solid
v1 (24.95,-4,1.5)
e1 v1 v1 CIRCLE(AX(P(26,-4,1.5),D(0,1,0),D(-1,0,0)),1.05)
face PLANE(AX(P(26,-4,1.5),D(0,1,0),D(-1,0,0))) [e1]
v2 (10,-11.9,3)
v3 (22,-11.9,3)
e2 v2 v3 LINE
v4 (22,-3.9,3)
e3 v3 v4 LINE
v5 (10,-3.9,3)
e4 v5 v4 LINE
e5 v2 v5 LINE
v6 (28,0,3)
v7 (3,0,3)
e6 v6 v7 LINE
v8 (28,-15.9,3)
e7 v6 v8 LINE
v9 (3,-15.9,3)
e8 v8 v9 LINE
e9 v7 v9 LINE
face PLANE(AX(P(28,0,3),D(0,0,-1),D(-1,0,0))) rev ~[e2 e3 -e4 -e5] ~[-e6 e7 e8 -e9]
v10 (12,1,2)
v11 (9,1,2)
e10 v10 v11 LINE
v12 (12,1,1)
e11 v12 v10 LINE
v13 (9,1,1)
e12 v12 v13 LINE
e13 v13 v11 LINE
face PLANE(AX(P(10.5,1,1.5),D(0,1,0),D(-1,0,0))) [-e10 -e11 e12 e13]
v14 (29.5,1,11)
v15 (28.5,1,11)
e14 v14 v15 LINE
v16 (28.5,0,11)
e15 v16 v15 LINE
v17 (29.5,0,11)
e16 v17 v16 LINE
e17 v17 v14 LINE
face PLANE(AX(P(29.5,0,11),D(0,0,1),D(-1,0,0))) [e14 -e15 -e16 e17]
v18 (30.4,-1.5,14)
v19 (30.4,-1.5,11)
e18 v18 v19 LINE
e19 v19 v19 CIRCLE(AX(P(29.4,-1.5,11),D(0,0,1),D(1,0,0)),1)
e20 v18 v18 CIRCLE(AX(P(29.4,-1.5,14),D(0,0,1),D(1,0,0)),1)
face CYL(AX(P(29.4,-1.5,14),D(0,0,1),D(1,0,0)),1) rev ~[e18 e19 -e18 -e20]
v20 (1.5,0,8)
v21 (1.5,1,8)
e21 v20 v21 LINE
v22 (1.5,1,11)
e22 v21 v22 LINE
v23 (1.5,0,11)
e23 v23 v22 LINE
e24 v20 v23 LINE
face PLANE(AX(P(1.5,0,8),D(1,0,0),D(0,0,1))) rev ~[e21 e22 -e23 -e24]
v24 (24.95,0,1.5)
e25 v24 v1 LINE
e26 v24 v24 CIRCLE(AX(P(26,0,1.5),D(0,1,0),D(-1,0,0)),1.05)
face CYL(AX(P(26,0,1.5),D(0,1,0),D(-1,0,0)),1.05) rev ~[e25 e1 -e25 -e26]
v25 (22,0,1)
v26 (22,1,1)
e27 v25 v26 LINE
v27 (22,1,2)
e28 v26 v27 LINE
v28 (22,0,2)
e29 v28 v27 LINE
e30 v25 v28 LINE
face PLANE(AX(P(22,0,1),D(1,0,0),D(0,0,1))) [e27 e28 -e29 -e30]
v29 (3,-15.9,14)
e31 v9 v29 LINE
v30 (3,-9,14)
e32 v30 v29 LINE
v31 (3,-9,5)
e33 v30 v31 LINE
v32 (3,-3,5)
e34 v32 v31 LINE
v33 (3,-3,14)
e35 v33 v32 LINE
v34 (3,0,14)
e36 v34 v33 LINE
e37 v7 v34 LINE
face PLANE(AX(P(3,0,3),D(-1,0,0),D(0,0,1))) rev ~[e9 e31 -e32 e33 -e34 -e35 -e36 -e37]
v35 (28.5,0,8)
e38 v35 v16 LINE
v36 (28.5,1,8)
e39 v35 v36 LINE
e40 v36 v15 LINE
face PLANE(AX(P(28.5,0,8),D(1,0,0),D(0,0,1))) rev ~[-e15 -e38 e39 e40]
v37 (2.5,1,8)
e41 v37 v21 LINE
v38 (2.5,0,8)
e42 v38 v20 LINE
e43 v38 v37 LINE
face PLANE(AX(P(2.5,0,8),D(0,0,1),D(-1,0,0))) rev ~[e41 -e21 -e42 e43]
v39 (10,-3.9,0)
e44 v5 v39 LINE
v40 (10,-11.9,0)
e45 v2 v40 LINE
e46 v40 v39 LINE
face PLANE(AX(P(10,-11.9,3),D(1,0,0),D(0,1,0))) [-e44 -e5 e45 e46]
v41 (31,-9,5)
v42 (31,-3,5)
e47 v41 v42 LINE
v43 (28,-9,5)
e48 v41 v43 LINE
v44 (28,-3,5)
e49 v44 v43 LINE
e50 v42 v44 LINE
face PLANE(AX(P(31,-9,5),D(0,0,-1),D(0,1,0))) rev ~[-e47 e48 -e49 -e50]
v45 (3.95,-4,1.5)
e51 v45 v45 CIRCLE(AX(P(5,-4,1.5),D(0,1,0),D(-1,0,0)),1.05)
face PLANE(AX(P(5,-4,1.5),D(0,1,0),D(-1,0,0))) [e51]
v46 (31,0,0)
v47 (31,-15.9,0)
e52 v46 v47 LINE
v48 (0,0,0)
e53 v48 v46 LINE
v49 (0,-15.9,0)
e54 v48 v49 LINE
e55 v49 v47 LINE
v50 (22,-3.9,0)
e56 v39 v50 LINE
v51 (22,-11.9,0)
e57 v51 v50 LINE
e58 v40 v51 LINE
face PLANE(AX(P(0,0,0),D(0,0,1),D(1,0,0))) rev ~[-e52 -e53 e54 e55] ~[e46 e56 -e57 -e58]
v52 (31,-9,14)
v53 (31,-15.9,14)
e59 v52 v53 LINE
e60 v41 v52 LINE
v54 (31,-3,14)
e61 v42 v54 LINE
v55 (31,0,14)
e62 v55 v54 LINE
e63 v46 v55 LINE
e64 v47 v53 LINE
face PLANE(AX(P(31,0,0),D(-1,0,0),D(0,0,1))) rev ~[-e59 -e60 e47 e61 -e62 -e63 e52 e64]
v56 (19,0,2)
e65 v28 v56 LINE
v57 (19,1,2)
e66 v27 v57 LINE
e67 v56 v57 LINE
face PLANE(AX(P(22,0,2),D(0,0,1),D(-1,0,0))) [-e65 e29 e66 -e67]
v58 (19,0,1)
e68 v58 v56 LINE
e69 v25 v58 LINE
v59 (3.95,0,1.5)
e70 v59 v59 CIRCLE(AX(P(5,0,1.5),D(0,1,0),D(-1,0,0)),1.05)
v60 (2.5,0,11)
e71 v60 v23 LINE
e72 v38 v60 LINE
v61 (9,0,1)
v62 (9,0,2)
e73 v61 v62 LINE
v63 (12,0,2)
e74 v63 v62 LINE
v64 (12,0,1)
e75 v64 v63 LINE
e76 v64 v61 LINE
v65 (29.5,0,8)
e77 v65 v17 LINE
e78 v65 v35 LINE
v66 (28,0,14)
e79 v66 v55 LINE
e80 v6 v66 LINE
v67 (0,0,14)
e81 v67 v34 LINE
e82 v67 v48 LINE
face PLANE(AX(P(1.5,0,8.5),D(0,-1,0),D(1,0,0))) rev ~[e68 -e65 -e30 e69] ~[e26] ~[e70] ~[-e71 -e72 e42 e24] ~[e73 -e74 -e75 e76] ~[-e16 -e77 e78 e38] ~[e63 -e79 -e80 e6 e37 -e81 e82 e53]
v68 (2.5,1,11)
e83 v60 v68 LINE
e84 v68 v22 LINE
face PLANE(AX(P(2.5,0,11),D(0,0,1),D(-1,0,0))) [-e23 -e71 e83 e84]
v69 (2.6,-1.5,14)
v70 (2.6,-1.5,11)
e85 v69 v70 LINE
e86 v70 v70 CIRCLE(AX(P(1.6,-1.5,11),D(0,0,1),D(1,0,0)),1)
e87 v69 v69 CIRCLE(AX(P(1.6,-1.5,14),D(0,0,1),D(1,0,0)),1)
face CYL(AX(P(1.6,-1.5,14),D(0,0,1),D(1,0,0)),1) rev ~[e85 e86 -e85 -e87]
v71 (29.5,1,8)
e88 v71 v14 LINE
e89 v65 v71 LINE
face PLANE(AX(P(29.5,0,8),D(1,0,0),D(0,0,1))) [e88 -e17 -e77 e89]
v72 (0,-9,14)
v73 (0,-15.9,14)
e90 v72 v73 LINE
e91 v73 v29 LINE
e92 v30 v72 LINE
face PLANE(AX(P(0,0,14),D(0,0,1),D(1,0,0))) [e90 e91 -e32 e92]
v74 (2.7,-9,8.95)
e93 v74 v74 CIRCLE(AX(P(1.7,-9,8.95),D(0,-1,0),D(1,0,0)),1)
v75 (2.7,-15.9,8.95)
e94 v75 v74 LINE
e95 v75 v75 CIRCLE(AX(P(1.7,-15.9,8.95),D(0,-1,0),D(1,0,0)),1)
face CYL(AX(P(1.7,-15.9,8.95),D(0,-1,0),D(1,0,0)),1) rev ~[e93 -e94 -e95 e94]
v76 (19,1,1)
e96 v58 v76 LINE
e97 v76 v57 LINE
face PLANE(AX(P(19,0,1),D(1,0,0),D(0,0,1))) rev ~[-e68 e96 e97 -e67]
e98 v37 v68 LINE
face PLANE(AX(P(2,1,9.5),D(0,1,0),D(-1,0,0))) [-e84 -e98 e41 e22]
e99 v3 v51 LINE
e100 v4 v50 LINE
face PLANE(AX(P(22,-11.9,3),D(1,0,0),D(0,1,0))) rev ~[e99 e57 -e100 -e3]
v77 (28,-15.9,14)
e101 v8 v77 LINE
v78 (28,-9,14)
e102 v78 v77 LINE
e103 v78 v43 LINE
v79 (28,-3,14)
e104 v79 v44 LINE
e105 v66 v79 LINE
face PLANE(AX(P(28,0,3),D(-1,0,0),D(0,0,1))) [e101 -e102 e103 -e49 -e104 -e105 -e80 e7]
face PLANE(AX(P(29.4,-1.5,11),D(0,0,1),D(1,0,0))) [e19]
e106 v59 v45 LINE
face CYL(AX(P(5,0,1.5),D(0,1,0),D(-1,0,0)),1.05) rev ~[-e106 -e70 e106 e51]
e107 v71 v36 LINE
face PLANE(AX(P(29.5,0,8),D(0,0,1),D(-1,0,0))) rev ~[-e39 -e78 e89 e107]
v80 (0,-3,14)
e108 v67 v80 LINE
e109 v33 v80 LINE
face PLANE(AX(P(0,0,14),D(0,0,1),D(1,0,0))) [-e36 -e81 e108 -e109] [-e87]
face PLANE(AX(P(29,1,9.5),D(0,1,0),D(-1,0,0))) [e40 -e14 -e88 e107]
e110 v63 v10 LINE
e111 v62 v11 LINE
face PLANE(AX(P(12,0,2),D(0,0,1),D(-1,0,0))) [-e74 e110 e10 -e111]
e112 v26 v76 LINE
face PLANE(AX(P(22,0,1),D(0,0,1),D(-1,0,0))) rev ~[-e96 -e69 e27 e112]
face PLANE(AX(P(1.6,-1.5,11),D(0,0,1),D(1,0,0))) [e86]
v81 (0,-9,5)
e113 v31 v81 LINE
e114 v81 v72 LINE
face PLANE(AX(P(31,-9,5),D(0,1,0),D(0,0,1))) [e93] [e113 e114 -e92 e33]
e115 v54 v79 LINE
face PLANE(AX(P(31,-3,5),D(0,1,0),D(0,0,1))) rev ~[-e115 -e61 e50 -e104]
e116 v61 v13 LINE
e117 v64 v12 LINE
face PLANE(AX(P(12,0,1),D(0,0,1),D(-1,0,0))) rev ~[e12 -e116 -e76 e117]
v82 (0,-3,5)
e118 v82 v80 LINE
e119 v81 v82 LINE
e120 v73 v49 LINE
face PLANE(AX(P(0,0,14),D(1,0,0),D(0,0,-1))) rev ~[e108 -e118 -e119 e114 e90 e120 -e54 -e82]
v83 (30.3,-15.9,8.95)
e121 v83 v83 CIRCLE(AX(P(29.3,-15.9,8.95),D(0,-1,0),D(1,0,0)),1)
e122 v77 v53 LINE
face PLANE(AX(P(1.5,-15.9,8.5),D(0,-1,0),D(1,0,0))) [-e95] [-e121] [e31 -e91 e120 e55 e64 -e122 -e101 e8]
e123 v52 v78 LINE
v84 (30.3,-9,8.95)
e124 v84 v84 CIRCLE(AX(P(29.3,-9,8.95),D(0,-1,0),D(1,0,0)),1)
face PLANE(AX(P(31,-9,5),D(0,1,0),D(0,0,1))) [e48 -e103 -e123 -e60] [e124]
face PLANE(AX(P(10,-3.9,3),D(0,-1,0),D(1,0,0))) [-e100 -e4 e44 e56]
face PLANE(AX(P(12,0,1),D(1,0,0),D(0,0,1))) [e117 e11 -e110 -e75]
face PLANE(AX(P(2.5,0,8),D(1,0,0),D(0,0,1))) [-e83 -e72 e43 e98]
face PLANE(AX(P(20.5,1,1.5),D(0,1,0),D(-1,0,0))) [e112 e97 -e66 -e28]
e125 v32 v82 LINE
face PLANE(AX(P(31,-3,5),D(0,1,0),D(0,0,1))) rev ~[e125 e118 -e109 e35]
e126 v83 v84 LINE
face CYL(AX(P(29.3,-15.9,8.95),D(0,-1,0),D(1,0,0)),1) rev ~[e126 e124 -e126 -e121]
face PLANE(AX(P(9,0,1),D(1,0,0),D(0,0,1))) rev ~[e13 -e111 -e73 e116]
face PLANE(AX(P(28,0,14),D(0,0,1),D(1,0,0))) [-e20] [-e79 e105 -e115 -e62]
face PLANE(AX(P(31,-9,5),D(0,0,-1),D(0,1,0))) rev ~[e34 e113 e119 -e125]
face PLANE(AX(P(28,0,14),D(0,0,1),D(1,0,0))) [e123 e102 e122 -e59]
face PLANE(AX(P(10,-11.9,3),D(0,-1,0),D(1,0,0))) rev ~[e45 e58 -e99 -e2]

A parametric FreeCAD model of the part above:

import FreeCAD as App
import Part
import Sketcher
Q = App.Units.Quantity

doc = App.newDocument("Part")
body = doc.addObject("PartDesign::Body", "Body")

# Sketch on XZ plane
sketch1 = body.newObject("Sketcher::SketchObject", "Sketch")
sketch1.AttachmentSupport = (doc.getObject("XZ_Plane"), [""])
sketch1.MapMode = "FlatFace"
sketch1.addGeometry(Part.LineSegment(App.Vector(0, 14, 0), App.Vector(0, 0, 0)), False)
sketch1.addGeometry(Part.LineSegment(App.Vector(0, 0, 0), App.Vector(31, 0, 0)), False)
sketch1.addGeometry(Part.LineSegment(App.Vector(31, 0, 0), App.Vector(31, 14, 0)), False)
sketch1.addGeometry(Part.LineSegment(App.Vector(31, 14, 0), App.Vector(28, 14, 0)), False)
sketch1.addGeometry(Part.LineSegment(App.Vector(28, 14, 0), App.Vector(28, 3, 0)), False)
sketch1.addGeometry(Part.LineSegment(App.Vector(28, 3, 0), App.Vector(3, 3, 0)), False)
sketch1.addGeometry(Part.LineSegment(App.Vector(3, 3, 0), App.Vector(3, 14, 0)), False)
sketch1.addGeometry(Part.LineSegment(App.Vector(3, 14, 0), App.Vector(0, 14, 0)), False)
sketch1.addConstraint(Sketcher.Constraint("Coincident", 0, 2, 1, 1))
sketch1.addConstraint(Sketcher.Constraint("Coincident", 1, 2, 2, 1))
sketch1.addConstraint(Sketcher.Constraint("Coincident", 2, 2, 3, 1))
sketch1.addConstraint(Sketcher.Constraint("Coincident", 3, 2, 4, 1))
sketch1.addConstraint(Sketcher.Constraint("Coincident", 4, 2, 5, 1))
sketch1.addConstraint(Sketcher.Constraint("Coincident", 5, 2, 6, 1))
sketch1.addConstraint(Sketcher.Constraint("Coincident", 6, 2, 7, 1))
sketch1.addConstraint(Sketcher.Constraint("Coincident", 7, 2, 0, 1))
sketch1.addConstraint(Sketcher.Constraint("Vertical", 0))
sketch1.addConstraint(Sketcher.Constraint("Horizontal", 1))
sketch1.addConstraint(Sketcher.Constraint("Vertical", 2))
sketch1.addConstraint(Sketcher.Constraint("Horizontal", 3))
sketch1.addConstraint(Sketcher.Constraint("Vertical", 4))
sketch1.addConstraint(Sketcher.Constraint("Horizontal", 5))
sketch1.addConstraint(Sketcher.Constraint("Vertical", 6))
sketch1.addConstraint(Sketcher.Constraint("Horizontal", 7))
sketch1.addConstraint(Sketcher.Constraint("Coincident", 0, 2, -1, 1))
sketch1.addConstraint(Sketcher.Constraint("Horizontal", 3, 2, 6, 2))
sketch1.addConstraint(Sketcher.Constraint("Equal", 3, 7))
sketch1.addConstraint(Sketcher.Constraint("DistanceX", 1, 1, 1, 2, Q("31 mm")))
sketch1.addConstraint(Sketcher.Constraint("DistanceX", 3, 2, 3, 1, Q("3 mm")))
sketch1.addConstraint(Sketcher.Constraint("DistanceY", 0, 2, 0, 1, Q("14 mm")))
sketch1.addConstraint(Sketcher.Constraint("DistanceY", 4, 2, 4, 1, Q("11 mm")))
pad1 = body.newObject("PartDesign::Pad", "Pad")
pad1.Profile = sketch1
pad1.Length = 15.9

# Sketch on YZ plane
sketch2 = body.newObject("Sketcher::SketchObject", "Sketch001")
sketch2.AttachmentSupport = (doc.getObject("YZ_Plane"), [""])
sketch2.MapMode = "FlatFace"
sketch2.AttachmentOffset = App.Placement(App.Vector(0, 0, 31), App.Rotation())
sketch2.addGeometry(Part.LineSegment(App.Vector(-9, 14, 0), App.Vector(-9, 5, 0)), False)
sketch2.addGeometry(Part.LineSegment(App.Vector(-9, 5, 0), App.Vector(-3, 5, 0)), False)
sketch2.addGeometry(Part.LineSegment(App.Vector(-3, 5, 0), App.Vector(-3, 14, 0)), False)
sketch2.addGeometry(Part.LineSegment(App.Vector(-3, 14, 0), App.Vector(-9, 14, 0)), False)
sketch2.addConstraint(Sketcher.Constraint("Coincident", 0, 2, 1, 1))
sketch2.addConstraint(Sketcher.Constraint("Coincident", 1, 2, 2, 1))
sketch2.addConstraint(Sketcher.Constraint("Coincident", 2, 2, 3, 1))
sketch2.addConstraint(Sketcher.Constraint("Coincident", 3, 2, 0, 1))
sketch2.addConstraint(Sketcher.Constraint("Vertical", 0))
sketch2.addConstraint(Sketcher.Constraint("Horizontal", 1))
sketch2.addConstraint(Sketcher.Constraint("Vertical", 2))
sketch2.addConstraint(Sketcher.Constraint("Horizontal", 3))
sketch2.addConstraint(Sketcher.Constraint("DistanceX", 1, 1, 1, 2, Q("6 mm")))
sketch2.addConstraint(Sketcher.Constraint("DistanceY", 0, 2, 0, 1, Q("9 mm")))
sketch2.addConstraint(Sketcher.Constraint("DistanceX", 0, 2, -1, 1, Q("9 mm")))
sketch2.addConstraint(Sketcher.Constraint("DistanceY", -1, 1, 0, 2, Q("5 mm")))
pocket1 = body.newObject("PartDesign::Pocket", "Pocket")
pocket1.Profile = sketch2
pocket1.Type = "ThroughAll"

# Sketch on XZ plane
sketch3 = body.newObject("Sketcher::SketchObject", "Sketch002")
sketch3.AttachmentSupport = (doc.getObject("XZ_Plane"), [""])
sketch3.MapMode = "FlatFace"
sketch3.AttachmentOffset = App.Placement(App.Vector(0, 0, 15.9), App.Rotation())
sketch3.addGeometry(Part.Circle(App.Vector(1.7, 8.9, 0), App.Vector(0, 0, 1), 1), False)
sketch3.addGeometry(Part.Circle(App.Vector(29.3, 8.9, 0), App.Vector(0, 0, 1), 1), False)
sketch3.addConstraint(Sketcher.Constraint("Equal", 0, 1))
sketch3.addConstraint(Sketcher.Constraint("Horizontal", 0, 3, 1, 3))
sketch3.addConstraint(Sketcher.Constraint("Diameter", 0, Q("2 mm")))
sketch3.addConstraint(Sketcher.Constraint("DistanceX", -1, 1, 0, 3, Q("1.7 mm")))
sketch3.addConstraint(Sketcher.Constraint("DistanceX", -1, 1, 1, 3, Q("29.3 mm")))
sketch3.addConstraint(Sketcher.Constraint("DistanceY", -1, 1, 0, 3, Q("8.95 mm")))
pocket2 = body.newObject("PartDesign::Pocket", "Pocket001")
pocket2.Profile = sketch3
pocket2.Length = 6.9

# Sketch on XZ plane
sketch4 = body.newObject("Sketcher::SketchObject", "Sketch003")
sketch4.AttachmentSupport = (doc.getObject("XZ_Plane"), [""])
sketch4.MapMode = "FlatFace"
sketch4.addGeometry(Part.Circle(App.Vector(26, 1.5, 0), App.Vector(0, 0, 1), 1.1), False)
sketch4.addGeometry(Part.Circle(App.Vector(5, 1.5, 0), App.Vector(0, 0, 1), 1.1), False)
sketch4.addConstraint(Sketcher.Constraint("Equal", 0, 1))
sketch4.addConstraint(Sketcher.Constraint("Horizontal", 0, 3, 1, 3))
sketch4.addConstraint(Sketcher.Constraint("Diameter", 0, Q("2.1 mm")))
sketch4.addConstraint(Sketcher.Constraint("DistanceX", -1, 1, 0, 3, Q("26 mm")))
sketch4.addConstraint(Sketcher.Constraint("DistanceX", -1, 1, 1, 3, Q("5 mm")))
sketch4.addConstraint(Sketcher.Constraint("DistanceY", -1, 1, 0, 3, Q("1.5 mm")))
pocket3 = body.newObject("PartDesign::Pocket", "Pocket002")
pocket3.Profile = sketch4
pocket3.Length = 4
pocket3.Reversed = True

# Sketch on XZ plane
sketch5 = body.newObject("Sketcher::SketchObject", "Sketch004")
sketch5.AttachmentSupport = (doc.getObject("XZ_Plane"), [""])
sketch5.MapMode = "FlatFace"
sketch5.addGeometry(Part.LineSegment(App.Vector(22, 2, 0), App.Vector(22, 1, 0)), False)
sketch5.addGeometry(Part.LineSegment(App.Vector(22, 1, 0), App.Vector(19, 1, 0)), False)
sketch5.addGeometry(Part.LineSegment(App.Vector(19, 1, 0), App.Vector(19, 2, 0)), False)
sketch5.addGeometry(Part.LineSegment(App.Vector(19, 2, 0), App.Vector(22, 2, 0)), False)
sketch5.addGeometry(Part.LineSegment(App.Vector(12, 2, 0), App.Vector(12, 1, 0)), False)
sketch5.addGeometry(Part.LineSegment(App.Vector(12, 1, 0), App.Vector(9, 1, 0)), False)
sketch5.addGeometry(Part.LineSegment(App.Vector(9, 1, 0), App.Vector(9, 2, 0)), False)
sketch5.addGeometry(Part.LineSegment(App.Vector(9, 2, 0), App.Vector(12, 2, 0)), False)
sketch5.addGeometry(Part.LineSegment(App.Vector(29.5, 11, 0), App.Vector(29.5, 8, 0)), False)
sketch5.addGeometry(Part.LineSegment(App.Vector(29.5, 8, 0), App.Vector(28.5, 8, 0)), False)
sketch5.addGeometry(Part.LineSegment(App.Vector(28.5, 8, 0), App.Vector(28.5, 11, 0)), False)
sketch5.addGeometry(Part.LineSegment(App.Vector(28.5, 11, 0), App.Vector(29.5, 11, 0)), False)
sketch5.addGeometry(Part.LineSegment(App.Vector(2.5, 11, 0), App.Vector(2.5, 8, 0)), False)
sketch5.addGeometry(Part.LineSegment(App.Vector(2.5, 8, 0), App.Vector(1.5, 8, 0)), False)
sketch5.addGeometry(Part.LineSegment(App.Vector(1.5, 8, 0), App.Vector(1.5, 11, 0)), False)
sketch5.addGeometry(Part.LineSegment(App.Vector(1.5, 11, 0), App.Vector(2.5, 11, 0)), False)
sketch5.addConstraint(Sketcher.Constraint("Coincident", 0, 2, 1, 1))
sketch5.addConstraint(Sketcher.Constraint("Coincident", 1, 2, 2, 1))
sketch5.addConstraint(Sketcher.Constraint("Coincident", 2, 2, 3, 1))
sketch5.addConstraint(Sketcher.Constraint("Coincident", 3, 2, 0, 1))
sketch5.addConstraint(Sketcher.Constraint("Coincident", 4, 2, 5, 1))
sketch5.addConstraint(Sketcher.Constraint("Coincident", 5, 2, 6, 1))
sketch5.addConstraint(Sketcher.Constraint("Coincident", 6, 2, 7, 1))
sketch5.addConstraint(Sketcher.Constraint("Coincident", 7, 2, 4, 1))
sketch5.addConstraint(Sketcher.Constraint("Coincident", 8, 2, 9, 1))
sketch5.addConstraint(Sketcher.Constraint("Coincident", 9, 2, 10, 1))
sketch5.addConstraint(Sketcher.Constraint("Coincident", 10, 2, 11, 1))
sketch5.addConstraint(Sketcher.Constraint("Coincident", 11, 2, 8, 1))
sketch5.addConstraint(Sketcher.Constraint("Coincident", 12, 2, 13, 1))
sketch5.addConstraint(Sketcher.Constraint("Coincident", 13, 2, 14, 1))
sketch5.addConstraint(Sketcher.Constraint("Coincident", 14, 2, 15, 1))
sketch5.addConstraint(Sketcher.Constraint("Coincident", 15, 2, 12, 1))
sketch5.addConstraint(Sketcher.Constraint("Vertical", 0))
sketch5.addConstraint(Sketcher.Constraint("Horizontal", 1))
sketch5.addConstraint(Sketcher.Constraint("Vertical", 2))
sketch5.addConstraint(Sketcher.Constraint("Horizontal", 3))
sketch5.addConstraint(Sketcher.Constraint("Vertical", 4))
sketch5.addConstraint(Sketcher.Constraint("Horizontal", 5))
sketch5.addConstraint(Sketcher.Constraint("Vertical", 6))
sketch5.addConstraint(Sketcher.Constraint("Horizontal", 7))
sketch5.addConstraint(Sketcher.Constraint("Vertical", 8))
sketch5.addConstraint(Sketcher.Constraint("Horizontal", 9))
sketch5.addConstraint(Sketcher.Constraint("Vertical", 10))
sketch5.addConstraint(Sketcher.Constraint("Horizontal", 11))
sketch5.addConstraint(Sketcher.Constraint("Vertical", 12))
sketch5.addConstraint(Sketcher.Constraint("Horizontal", 13))
sketch5.addConstraint(Sketcher.Constraint("Vertical", 14))
sketch5.addConstraint(Sketcher.Constraint("Horizontal", 15))
sketch5.addConstraint(Sketcher.Constraint("Horizontal", 1, 2, 4, 2))
sketch5.addConstraint(Sketcher.Constraint("Horizontal", 3, 2, 6, 2))
sketch5.addConstraint(Sketcher.Constraint("Horizontal", 9, 2, 12, 2))
sketch5.addConstraint(Sketcher.Constraint("Horizontal", 11, 2, 14, 2))
sketch5.addConstraint(Sketcher.Constraint("Equal", 3, 5))
sketch5.addConstraint(Sketcher.Constraint("Equal", 11, 13))
sketch5.addConstraint(Sketcher.Constraint("Equal", 15, 0))
sketch5.addConstraint(Sketcher.Constraint("Equal", 7, 8))
sketch5.addConstraint(Sketcher.Constraint("DistanceX", 1, 2, 1, 1, Q("3 mm")))
sketch5.addConstraint(Sketcher.Constraint("DistanceX", 9, 2, 9, 1, Q("1 mm")))
sketch5.addConstraint(Sketcher.Constraint("DistanceX", -1, 1, 0, 2, Q("22 mm")))
sketch5.addConstraint(Sketcher.Constraint("DistanceY", -1, 1, 0, 2, Q("1 mm")))
sketch5.addConstraint(Sketcher.Constraint("DistanceX", -1, 1, 4, 2, Q("12 mm")))
sketch5.addConstraint(Sketcher.Constraint("DistanceY", -1, 1, 8, 2, Q("8 mm")))
sketch5.addConstraint(Sketcher.Constraint("DistanceX", -1, 1, 8, 2, Q("29.5 mm")))
sketch5.addConstraint(Sketcher.Constraint("DistanceX", -1, 1, 12, 2, Q("2.5 mm")))
pad2 = body.newObject("PartDesign::Pad", "Pad001")
pad2.Profile = sketch5
pad2.Length = 1
pad2.Reversed = True

# Sketch on XY plane
sketch6 = body.newObject("Sketcher::SketchObject", "Sketch005")
sketch6.AttachmentSupport = (doc.getObject("XY_Plane"), [""])
sketch6.MapMode = "FlatFace"
sketch6.AttachmentOffset = App.Placement(App.Vector(0, 0, 14), App.Rotation())
sketch6.addGeometry(Part.Circle(App.Vector(29.4, -1.5, 0), App.Vector(0, 0, 1), 1), False)
sketch6.addGeometry(Part.Circle(App.Vector(1.6, -1.5, 0), App.Vector(0, 0, 1), 1), False)
sketch6.addConstraint(Sketcher.Constraint("Equal", 0, 1))
sketch6.addConstraint(Sketcher.Constraint("Horizontal", 0, 3, 1, 3))
sketch6.addConstraint(Sketcher.Constraint("Diameter", 0, Q("2 mm")))
sketch6.addConstraint(Sketcher.Constraint("DistanceX", -1, 1, 0, 3, Q("29.4 mm")))
sketch6.addConstraint(Sketcher.Constraint("DistanceY", 0, 3, -1, 1, Q("1.5 mm")))
sketch6.addConstraint(Sketcher.Constraint("DistanceX", -1, 1, 1, 3, Q("1.6 mm")))
pocket4 = body.newObject("PartDesign::Pocket", "Pocket003")
pocket4.Profile = sketch6
pocket4.Length = 3

# Sketch on XY plane
sketch7 = body.newObject("Sketcher::SketchObject", "Sketch006")
sketch7.AttachmentSupport = (doc.getObject("XY_Plane"), [""])
sketch7.MapMode = "FlatFace"
sketch7.AttachmentOffset = App.Placement(App.Vector(0, 0, 3), App.Rotation())
sketch7.addGeometry(Part.LineSegment(App.Vector(10, -4, 0), App.Vector(10, -12, 0)), False)
sketch7.addGeometry(Part.LineSegment(App.Vector(10, -12, 0), App.Vector(22, -12, 0)), False)
sketch7.addGeometry(Part.LineSegment(App.Vector(22, -12, 0), App.Vector(22, -4, 0)), False)
sketch7.addGeometry(Part.LineSegment(App.Vector(22, -4, 0), App.Vector(10, -4, 0)), False)
sketch7.addConstraint(Sketcher.Constraint("Coincident", 0, 2, 1, 1))
sketch7.addConstraint(Sketcher.Constraint("Coincident", 1, 2, 2, 1))
sketch7.addConstraint(Sketcher.Constraint("Coincident", 2, 2, 3, 1))
sketch7.addConstraint(Sketcher.Constraint("Coincident", 3, 2, 0, 1))
sketch7.addConstraint(Sketcher.Constraint("Vertical", 0))
sketch7.addConstraint(Sketcher.Constraint("Horizontal", 1))
sketch7.addConstraint(Sketcher.Constraint("Vertical", 2))
sketch7.addConstraint(Sketcher.Constraint("Horizontal", 3))
sketch7.addConstraint(Sketcher.Constraint("DistanceX", 1, 1, 1, 2, Q("12 mm")))
sketch7.addConstraint(Sketcher.Constraint("DistanceY", 0, 2, 0, 1, Q("8 mm")))
sketch7.addConstraint(Sketcher.Constraint("DistanceX", -1, 1, 0, 2, Q("10 mm")))
sketch7.addConstraint(Sketcher.Constraint("DistanceY", 0, 2, -1, 1, Q("11.9 mm")))
pocket5 = body.newObject("PartDesign::Pocket", "Pocket004")
pocket5.Profile = sketch7
pocket5.Type = "ThroughAll"

doc.recompute()
